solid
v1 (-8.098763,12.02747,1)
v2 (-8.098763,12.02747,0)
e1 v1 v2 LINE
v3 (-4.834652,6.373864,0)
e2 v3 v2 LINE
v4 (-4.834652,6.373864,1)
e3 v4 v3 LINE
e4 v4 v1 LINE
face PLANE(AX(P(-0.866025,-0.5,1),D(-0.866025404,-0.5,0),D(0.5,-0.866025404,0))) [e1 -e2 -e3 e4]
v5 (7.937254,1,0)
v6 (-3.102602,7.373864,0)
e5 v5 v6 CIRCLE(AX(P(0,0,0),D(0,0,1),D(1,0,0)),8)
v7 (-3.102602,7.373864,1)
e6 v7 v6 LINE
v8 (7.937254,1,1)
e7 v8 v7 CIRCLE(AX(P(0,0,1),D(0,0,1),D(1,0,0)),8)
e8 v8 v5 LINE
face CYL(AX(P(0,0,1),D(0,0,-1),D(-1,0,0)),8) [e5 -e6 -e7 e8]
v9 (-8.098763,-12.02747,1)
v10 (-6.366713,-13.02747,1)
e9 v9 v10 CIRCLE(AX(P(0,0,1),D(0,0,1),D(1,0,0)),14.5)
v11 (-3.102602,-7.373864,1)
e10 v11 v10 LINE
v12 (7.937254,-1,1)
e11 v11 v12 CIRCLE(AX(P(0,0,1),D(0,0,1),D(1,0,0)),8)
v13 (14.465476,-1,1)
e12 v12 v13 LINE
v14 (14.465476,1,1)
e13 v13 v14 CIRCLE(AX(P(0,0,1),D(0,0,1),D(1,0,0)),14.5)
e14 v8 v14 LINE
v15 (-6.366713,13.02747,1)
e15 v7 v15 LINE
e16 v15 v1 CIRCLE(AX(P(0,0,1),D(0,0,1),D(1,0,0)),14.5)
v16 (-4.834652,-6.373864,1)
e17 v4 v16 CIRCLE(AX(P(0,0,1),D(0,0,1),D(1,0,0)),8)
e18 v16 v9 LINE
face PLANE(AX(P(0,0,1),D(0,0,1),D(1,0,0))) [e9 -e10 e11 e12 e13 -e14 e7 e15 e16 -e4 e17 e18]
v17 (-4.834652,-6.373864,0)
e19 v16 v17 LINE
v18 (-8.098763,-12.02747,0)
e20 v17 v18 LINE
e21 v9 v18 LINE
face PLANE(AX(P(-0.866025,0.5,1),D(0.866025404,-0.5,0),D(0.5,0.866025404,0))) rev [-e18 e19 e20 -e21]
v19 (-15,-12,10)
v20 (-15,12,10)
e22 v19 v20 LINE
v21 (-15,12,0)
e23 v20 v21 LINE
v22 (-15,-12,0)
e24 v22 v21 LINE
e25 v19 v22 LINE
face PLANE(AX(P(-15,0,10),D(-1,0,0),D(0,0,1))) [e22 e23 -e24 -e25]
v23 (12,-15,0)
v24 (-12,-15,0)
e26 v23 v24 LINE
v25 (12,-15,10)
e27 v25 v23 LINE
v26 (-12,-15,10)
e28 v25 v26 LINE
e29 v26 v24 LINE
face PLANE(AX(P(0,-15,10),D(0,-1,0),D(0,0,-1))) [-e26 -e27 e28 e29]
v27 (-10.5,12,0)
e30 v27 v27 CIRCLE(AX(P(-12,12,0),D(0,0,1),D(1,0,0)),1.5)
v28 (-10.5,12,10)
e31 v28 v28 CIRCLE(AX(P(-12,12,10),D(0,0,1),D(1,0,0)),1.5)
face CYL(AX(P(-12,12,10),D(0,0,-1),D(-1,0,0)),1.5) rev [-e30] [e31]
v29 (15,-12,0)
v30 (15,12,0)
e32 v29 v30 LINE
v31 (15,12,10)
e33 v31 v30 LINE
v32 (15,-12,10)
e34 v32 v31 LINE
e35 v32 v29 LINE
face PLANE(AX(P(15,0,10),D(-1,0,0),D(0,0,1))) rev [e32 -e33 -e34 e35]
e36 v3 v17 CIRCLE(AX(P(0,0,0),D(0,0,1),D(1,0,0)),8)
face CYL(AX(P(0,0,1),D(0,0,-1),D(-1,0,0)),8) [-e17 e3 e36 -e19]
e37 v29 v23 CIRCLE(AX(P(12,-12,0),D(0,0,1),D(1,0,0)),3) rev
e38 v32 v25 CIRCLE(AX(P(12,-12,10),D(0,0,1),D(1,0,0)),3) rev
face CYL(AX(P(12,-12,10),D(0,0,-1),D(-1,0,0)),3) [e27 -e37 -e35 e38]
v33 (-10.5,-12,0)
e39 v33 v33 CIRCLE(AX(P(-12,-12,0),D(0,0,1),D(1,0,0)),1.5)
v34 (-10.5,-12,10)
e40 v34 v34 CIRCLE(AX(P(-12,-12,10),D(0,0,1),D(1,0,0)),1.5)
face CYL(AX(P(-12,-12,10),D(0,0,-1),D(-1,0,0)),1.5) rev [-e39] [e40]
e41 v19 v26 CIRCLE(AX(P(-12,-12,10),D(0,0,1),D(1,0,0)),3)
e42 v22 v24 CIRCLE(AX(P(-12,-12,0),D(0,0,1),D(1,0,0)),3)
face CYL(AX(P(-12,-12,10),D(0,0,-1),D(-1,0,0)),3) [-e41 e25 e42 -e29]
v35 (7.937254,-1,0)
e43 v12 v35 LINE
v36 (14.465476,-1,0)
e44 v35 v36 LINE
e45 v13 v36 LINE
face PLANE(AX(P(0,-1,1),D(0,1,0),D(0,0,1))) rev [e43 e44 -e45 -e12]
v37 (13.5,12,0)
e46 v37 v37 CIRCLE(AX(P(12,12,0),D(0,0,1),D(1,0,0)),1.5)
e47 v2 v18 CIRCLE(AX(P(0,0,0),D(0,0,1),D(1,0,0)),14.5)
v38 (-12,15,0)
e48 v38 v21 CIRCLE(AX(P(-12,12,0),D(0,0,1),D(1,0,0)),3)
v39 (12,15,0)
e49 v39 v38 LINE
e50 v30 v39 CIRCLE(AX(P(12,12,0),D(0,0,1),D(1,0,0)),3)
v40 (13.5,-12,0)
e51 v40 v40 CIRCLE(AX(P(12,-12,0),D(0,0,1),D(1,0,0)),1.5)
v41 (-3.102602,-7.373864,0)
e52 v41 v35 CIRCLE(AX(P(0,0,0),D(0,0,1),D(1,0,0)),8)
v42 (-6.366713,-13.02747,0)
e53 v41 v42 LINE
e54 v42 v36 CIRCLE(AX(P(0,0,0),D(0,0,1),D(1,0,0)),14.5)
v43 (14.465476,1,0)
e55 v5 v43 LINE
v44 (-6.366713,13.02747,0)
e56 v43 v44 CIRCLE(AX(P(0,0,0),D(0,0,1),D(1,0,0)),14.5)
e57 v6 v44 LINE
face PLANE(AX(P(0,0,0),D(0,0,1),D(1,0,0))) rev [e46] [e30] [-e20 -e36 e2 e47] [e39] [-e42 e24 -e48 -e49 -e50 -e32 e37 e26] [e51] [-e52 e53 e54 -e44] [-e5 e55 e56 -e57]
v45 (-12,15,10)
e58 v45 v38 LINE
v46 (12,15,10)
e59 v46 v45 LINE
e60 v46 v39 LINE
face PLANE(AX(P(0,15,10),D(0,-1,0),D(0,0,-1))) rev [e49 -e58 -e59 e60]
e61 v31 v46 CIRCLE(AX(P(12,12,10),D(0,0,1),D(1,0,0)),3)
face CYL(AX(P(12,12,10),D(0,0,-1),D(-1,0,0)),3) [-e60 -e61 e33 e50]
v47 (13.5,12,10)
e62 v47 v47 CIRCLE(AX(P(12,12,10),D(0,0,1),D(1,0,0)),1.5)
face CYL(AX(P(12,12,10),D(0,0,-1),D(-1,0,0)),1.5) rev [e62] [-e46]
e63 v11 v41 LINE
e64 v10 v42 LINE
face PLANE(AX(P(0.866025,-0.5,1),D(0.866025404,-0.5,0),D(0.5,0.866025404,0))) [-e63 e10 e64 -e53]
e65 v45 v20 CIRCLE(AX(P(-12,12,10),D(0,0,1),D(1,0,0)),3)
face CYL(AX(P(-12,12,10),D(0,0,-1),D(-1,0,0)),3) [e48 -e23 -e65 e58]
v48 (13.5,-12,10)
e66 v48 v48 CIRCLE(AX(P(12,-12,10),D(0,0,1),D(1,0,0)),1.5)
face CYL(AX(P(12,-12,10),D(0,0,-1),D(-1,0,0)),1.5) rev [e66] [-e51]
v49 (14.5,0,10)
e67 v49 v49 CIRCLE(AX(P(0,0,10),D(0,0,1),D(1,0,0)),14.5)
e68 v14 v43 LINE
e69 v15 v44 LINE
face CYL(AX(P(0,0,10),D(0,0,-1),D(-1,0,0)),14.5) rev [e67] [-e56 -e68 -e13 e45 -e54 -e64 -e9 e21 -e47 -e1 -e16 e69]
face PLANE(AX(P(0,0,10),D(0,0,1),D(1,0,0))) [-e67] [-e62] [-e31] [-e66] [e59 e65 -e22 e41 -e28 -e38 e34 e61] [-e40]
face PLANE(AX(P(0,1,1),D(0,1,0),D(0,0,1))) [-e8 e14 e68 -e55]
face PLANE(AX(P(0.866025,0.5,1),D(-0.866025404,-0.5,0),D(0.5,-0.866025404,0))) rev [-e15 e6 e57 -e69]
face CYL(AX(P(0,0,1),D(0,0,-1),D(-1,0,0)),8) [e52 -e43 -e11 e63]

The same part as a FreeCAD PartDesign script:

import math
import FreeCAD as App
import Part
import Sketcher
from FreeCAD import Vector
Q = App.Units.Quantity

doc = App.newDocument("Part")
body = doc.addObject("PartDesign::Body", "Body")

# Sketch on XY plane
sketch1 = body.newObject("Sketcher::SketchObject", "Sketch")
sketch1.AttachmentSupport = (doc.getObject("XY_Plane"), [""])
sketch1.MapMode = "FlatFace"
sketch1.addGeometry([
    Part.LineSegment(Vector(-15, 12, 0), Vector(-15, -12, 0)),  # 0
    Part.ArcOfCircle(Part.Circle(Vector(-12, -12, 0), Vector(0, 0, 1), 3), math.radians(180), math.radians(270)),  # 1
    Part.LineSegment(Vector(-12, -15, 0), Vector(12, -15, 0)),  # 2
    Part.ArcOfCircle(Part.Circle(Vector(12, -12, 0), Vector(0, 0, 1), 3), math.radians(-90), math.radians(0)),  # 3
    Part.LineSegment(Vector(15, -12, 0), Vector(15, 12, 0)),  # 4
    Part.ArcOfCircle(Part.Circle(Vector(12, 12, 0), Vector(0, 0, 1), 3), math.radians(0), math.radians(90)),  # 5
    Part.LineSegment(Vector(12, 15, 0), Vector(-12, 15, 0)),  # 6
    Part.ArcOfCircle(Part.Circle(Vector(-12, 12, 0), Vector(0, 0, 1), 3), math.radians(90), math.radians(180)),  # 7
    Part.Circle(Vector(-12, -12, 0), Vector(0, 0, 1), 1.5),  # 8
    Part.Circle(Vector(12, -12, 0), Vector(0, 0, 1), 1.5),  # 9
    Part.Circle(Vector(-12, 12, 0), Vector(0, 0, 1), 1.5),  # 10
    Part.Circle(Vector(0, 0, 0), Vector(0, 0, 1), 14.5),  # 11
    Part.Circle(Vector(12, 12, 0), Vector(0, 0, 1), 1.5),  # 12
], False)
sketch1.addConstraint([
    Sketcher.Constraint("Tangent", 0, 2, 1, 1),
    Sketcher.Constraint("Tangent", 1, 2, 2, 1),
    Sketcher.Constraint("Tangent", 2, 2, 3, 1),
    Sketcher.Constraint("Tangent", 3, 2, 4, 1),
    Sketcher.Constraint("Tangent", 4, 2, 5, 1),
    Sketcher.Constraint("Tangent", 5, 2, 6, 1),
    Sketcher.Constraint("Tangent", 6, 2, 7, 1),
    Sketcher.Constraint("Tangent", 7, 2, 0, 1),
    Sketcher.Constraint("Vertical", 0),
    Sketcher.Constraint("Horizontal", 2),
    Sketcher.Constraint("Vertical", 4),
    Sketcher.Constraint("Horizontal", 6),
    Sketcher.Constraint("Coincident", 11, 3, -1, 1),
    Sketcher.Constraint("Coincident", 8, 3, 1, 3),
    Sketcher.Constraint("Coincident", 9, 3, 3, 3),
    Sketcher.Constraint("Coincident", 10, 3, 7, 3),
    Sketcher.Constraint("Coincident", 12, 3, 5, 3),
    Sketcher.Constraint("Equal", 1, 3),
    Sketcher.Constraint("Equal", 3, 5),
    Sketcher.Constraint("Equal", 5, 7),
    Sketcher.Constraint("Equal", 8, 9),
    Sketcher.Constraint("Equal", 9, 10),
    Sketcher.Constraint("Equal", 10, 12),
    Sketcher.Constraint("Symmetric", 1, 3, 5, 3, -1, 1),
    Sketcher.Constraint("Equal", 6, 0),
    Sketcher.Constraint("Diameter", 8, Q("3 mm")),
    Sketcher.Constraint("Diameter", 11, Q("29 mm")),
    Sketcher.Constraint("Radius", 1, Q("3 mm")),
    Sketcher.Constraint("DistanceX", 2, 1, 2, 2, Q("24 mm")),
])
pad1 = body.newObject("PartDesign::Pad", "Pad")
pad1.Profile = sketch1
pad1.Length = 10

# Sketch on XY plane
sketch2 = body.newObject("Sketcher::SketchObject", "Sketch001")
sketch2.AttachmentSupport = (doc.getObject("XY_Plane"), [""])
sketch2.MapMode = "FlatFace"
sketch2.addGeometry([
    Part.LineSegment(Vector(-3.102602, 7.373864, 0), Vector(-6.366713, 13.02747, 0)),  # 0
    Part.ArcOfCircle(Part.Circle(Vector(0, 0, 0), Vector(0, 0, 1), 14.5), math.radians(116.045428), math.radians(123.954572)),  # 1
    Part.LineSegment(Vector(-8.098763, 12.02747, 0), Vector(-4.834652, 6.373864, 0)),  # 2
    Part.ArcOfCircle(Part.Circle(Vector(0, 0, 0), Vector(0, 0, 1), 8), math.radians(127.180756), math.radians(232.819244)),  # 3
    Part.LineSegment(Vector(-4.834652, -6.373864, 0), Vector(-8.098763, -12.02747, 0)),  # 4
    Part.ArcOfCircle(Part.Circle(Vector(0, 0, 0), Vector(0, 0, 1), 14.5), math.radians(-123.954572), math.radians(-116.045428)),  # 5
    Part.LineSegment(Vector(-6.366713, -13.02747, 0), Vector(-3.102602, -7.373864, 0)),  # 6
    Part.ArcOfCircle(Part.Circle(Vector(0, 0, 0), Vector(0, 0, 1), 8), math.radians(-112.819244), math.radians(-7.180756)),  # 7
    Part.LineSegment(Vector(7.937254, -1, 0), Vector(14.465476, -1, 0)),  # 8
    Part.ArcOfCircle(Part.Circle(Vector(0, 0, 0), Vector(0, 0, 1), 14.5), math.radians(-3.954572), math.radians(0)),  # 9
    Part.ArcOfCircle(Part.Circle(Vector(0, 0, 0), Vector(0, 0, 1), 14.5), math.radians(0), math.radians(3.954572)),  # 10
    Part.LineSegment(Vector(14.465476, 1, 0), Vector(7.937254, 1, 0)),  # 11
    Part.ArcOfCircle(Part.Circle(Vector(0, 0, 0), Vector(0, 0, 1), 8), math.radians(7.180756), math.radians(112.819244)),  # 12
], False)
sketch2.addConstraint([
    Sketcher.Constraint("Coincident", 0, 2, 1, 1),
    Sketcher.Constraint("Coincident", 1, 2, 2, 1),
    Sketcher.Constraint("Coincident", 2, 2, 3, 1),
    Sketcher.Constraint("Coincident", 3, 2, 4, 1),
    Sketcher.Constraint("Coincident", 4, 2, 5, 1),
    Sketcher.Constraint("Coincident", 5, 2, 6, 1),
    Sketcher.Constraint("Coincident", 6, 2, 7, 1),
    Sketcher.Constraint("Coincident", 7, 2, 8, 1),
    Sketcher.Constraint("Coincident", 8, 2, 9, 1),
    Sketcher.Constraint("Tangent", 9, 2, 10, 1),
    Sketcher.Constraint("Coincident", 10, 2, 11, 1),
    Sketcher.Constraint("Coincident", 11, 2, 12, 1),
    Sketcher.Constraint("Coincident", 12, 2, 0, 1),
    Sketcher.Constraint("Horizontal", 8),
    Sketcher.Constraint("Horizontal", 11),
    Sketcher.Constraint("Coincident", 1, 3, -1, 1),
    Sketcher.Constraint("Coincident", 3, 3, -1, 1),
    Sketcher.Constraint("Coincident", 5, 3, -1, 1),
    Sketcher.Constraint("Coincident", 7, 3, -1, 1),
    Sketcher.Constraint("Coincident", 9, 3, -1, 1),
    Sketcher.Constraint("Coincident", 12, 3, -1, 1),
    Sketcher.Constraint("Equal", 1, 5),
    Sketcher.Constraint("Equal", 3, 7),
    Sketcher.Constraint("Equal", 5, 9),
    Sketcher.Constraint("Equal", 9, 10),
    Sketcher.Constraint("Equal", 7, 12),
    Sketcher.Constraint("PointOnObject", 9, 2, -1),
    Sketcher.Constraint("Parallel", 0, 2),
    Sketcher.Constraint("Parallel", 4, 6),
    Sketcher.Constraint("Vertical", 2, 2, 3, 2),
    Sketcher.Constraint("Vertical", 1, 2, 4, 2),
    Sketcher.Constraint("Vertical", 0, 2, 5, 2),
    Sketcher.Constraint("Vertical", 8, 2, 10, 2),
    Sketcher.Constraint("Equal", 0, 2),
    Sketcher.Constraint("Radius", 3, Q("8 mm")),
    Sketcher.Constraint("Radius", 1, Q("14.5 mm")),
    Sketcher.Constraint("Angle", 0, Q("120 deg")),
    Sketcher.Constraint("DistanceY", 7, 2, -1, 1, Q("1 mm")),
    Sketcher.Constraint("DistanceY", 1, 2, 0, 2, Q("1 mm")),
])
pad2 = body.newObject("PartDesign::Pad", "Pad001")
pad2.Profile = sketch2
pad2.Length = 1

doc.recompute()
